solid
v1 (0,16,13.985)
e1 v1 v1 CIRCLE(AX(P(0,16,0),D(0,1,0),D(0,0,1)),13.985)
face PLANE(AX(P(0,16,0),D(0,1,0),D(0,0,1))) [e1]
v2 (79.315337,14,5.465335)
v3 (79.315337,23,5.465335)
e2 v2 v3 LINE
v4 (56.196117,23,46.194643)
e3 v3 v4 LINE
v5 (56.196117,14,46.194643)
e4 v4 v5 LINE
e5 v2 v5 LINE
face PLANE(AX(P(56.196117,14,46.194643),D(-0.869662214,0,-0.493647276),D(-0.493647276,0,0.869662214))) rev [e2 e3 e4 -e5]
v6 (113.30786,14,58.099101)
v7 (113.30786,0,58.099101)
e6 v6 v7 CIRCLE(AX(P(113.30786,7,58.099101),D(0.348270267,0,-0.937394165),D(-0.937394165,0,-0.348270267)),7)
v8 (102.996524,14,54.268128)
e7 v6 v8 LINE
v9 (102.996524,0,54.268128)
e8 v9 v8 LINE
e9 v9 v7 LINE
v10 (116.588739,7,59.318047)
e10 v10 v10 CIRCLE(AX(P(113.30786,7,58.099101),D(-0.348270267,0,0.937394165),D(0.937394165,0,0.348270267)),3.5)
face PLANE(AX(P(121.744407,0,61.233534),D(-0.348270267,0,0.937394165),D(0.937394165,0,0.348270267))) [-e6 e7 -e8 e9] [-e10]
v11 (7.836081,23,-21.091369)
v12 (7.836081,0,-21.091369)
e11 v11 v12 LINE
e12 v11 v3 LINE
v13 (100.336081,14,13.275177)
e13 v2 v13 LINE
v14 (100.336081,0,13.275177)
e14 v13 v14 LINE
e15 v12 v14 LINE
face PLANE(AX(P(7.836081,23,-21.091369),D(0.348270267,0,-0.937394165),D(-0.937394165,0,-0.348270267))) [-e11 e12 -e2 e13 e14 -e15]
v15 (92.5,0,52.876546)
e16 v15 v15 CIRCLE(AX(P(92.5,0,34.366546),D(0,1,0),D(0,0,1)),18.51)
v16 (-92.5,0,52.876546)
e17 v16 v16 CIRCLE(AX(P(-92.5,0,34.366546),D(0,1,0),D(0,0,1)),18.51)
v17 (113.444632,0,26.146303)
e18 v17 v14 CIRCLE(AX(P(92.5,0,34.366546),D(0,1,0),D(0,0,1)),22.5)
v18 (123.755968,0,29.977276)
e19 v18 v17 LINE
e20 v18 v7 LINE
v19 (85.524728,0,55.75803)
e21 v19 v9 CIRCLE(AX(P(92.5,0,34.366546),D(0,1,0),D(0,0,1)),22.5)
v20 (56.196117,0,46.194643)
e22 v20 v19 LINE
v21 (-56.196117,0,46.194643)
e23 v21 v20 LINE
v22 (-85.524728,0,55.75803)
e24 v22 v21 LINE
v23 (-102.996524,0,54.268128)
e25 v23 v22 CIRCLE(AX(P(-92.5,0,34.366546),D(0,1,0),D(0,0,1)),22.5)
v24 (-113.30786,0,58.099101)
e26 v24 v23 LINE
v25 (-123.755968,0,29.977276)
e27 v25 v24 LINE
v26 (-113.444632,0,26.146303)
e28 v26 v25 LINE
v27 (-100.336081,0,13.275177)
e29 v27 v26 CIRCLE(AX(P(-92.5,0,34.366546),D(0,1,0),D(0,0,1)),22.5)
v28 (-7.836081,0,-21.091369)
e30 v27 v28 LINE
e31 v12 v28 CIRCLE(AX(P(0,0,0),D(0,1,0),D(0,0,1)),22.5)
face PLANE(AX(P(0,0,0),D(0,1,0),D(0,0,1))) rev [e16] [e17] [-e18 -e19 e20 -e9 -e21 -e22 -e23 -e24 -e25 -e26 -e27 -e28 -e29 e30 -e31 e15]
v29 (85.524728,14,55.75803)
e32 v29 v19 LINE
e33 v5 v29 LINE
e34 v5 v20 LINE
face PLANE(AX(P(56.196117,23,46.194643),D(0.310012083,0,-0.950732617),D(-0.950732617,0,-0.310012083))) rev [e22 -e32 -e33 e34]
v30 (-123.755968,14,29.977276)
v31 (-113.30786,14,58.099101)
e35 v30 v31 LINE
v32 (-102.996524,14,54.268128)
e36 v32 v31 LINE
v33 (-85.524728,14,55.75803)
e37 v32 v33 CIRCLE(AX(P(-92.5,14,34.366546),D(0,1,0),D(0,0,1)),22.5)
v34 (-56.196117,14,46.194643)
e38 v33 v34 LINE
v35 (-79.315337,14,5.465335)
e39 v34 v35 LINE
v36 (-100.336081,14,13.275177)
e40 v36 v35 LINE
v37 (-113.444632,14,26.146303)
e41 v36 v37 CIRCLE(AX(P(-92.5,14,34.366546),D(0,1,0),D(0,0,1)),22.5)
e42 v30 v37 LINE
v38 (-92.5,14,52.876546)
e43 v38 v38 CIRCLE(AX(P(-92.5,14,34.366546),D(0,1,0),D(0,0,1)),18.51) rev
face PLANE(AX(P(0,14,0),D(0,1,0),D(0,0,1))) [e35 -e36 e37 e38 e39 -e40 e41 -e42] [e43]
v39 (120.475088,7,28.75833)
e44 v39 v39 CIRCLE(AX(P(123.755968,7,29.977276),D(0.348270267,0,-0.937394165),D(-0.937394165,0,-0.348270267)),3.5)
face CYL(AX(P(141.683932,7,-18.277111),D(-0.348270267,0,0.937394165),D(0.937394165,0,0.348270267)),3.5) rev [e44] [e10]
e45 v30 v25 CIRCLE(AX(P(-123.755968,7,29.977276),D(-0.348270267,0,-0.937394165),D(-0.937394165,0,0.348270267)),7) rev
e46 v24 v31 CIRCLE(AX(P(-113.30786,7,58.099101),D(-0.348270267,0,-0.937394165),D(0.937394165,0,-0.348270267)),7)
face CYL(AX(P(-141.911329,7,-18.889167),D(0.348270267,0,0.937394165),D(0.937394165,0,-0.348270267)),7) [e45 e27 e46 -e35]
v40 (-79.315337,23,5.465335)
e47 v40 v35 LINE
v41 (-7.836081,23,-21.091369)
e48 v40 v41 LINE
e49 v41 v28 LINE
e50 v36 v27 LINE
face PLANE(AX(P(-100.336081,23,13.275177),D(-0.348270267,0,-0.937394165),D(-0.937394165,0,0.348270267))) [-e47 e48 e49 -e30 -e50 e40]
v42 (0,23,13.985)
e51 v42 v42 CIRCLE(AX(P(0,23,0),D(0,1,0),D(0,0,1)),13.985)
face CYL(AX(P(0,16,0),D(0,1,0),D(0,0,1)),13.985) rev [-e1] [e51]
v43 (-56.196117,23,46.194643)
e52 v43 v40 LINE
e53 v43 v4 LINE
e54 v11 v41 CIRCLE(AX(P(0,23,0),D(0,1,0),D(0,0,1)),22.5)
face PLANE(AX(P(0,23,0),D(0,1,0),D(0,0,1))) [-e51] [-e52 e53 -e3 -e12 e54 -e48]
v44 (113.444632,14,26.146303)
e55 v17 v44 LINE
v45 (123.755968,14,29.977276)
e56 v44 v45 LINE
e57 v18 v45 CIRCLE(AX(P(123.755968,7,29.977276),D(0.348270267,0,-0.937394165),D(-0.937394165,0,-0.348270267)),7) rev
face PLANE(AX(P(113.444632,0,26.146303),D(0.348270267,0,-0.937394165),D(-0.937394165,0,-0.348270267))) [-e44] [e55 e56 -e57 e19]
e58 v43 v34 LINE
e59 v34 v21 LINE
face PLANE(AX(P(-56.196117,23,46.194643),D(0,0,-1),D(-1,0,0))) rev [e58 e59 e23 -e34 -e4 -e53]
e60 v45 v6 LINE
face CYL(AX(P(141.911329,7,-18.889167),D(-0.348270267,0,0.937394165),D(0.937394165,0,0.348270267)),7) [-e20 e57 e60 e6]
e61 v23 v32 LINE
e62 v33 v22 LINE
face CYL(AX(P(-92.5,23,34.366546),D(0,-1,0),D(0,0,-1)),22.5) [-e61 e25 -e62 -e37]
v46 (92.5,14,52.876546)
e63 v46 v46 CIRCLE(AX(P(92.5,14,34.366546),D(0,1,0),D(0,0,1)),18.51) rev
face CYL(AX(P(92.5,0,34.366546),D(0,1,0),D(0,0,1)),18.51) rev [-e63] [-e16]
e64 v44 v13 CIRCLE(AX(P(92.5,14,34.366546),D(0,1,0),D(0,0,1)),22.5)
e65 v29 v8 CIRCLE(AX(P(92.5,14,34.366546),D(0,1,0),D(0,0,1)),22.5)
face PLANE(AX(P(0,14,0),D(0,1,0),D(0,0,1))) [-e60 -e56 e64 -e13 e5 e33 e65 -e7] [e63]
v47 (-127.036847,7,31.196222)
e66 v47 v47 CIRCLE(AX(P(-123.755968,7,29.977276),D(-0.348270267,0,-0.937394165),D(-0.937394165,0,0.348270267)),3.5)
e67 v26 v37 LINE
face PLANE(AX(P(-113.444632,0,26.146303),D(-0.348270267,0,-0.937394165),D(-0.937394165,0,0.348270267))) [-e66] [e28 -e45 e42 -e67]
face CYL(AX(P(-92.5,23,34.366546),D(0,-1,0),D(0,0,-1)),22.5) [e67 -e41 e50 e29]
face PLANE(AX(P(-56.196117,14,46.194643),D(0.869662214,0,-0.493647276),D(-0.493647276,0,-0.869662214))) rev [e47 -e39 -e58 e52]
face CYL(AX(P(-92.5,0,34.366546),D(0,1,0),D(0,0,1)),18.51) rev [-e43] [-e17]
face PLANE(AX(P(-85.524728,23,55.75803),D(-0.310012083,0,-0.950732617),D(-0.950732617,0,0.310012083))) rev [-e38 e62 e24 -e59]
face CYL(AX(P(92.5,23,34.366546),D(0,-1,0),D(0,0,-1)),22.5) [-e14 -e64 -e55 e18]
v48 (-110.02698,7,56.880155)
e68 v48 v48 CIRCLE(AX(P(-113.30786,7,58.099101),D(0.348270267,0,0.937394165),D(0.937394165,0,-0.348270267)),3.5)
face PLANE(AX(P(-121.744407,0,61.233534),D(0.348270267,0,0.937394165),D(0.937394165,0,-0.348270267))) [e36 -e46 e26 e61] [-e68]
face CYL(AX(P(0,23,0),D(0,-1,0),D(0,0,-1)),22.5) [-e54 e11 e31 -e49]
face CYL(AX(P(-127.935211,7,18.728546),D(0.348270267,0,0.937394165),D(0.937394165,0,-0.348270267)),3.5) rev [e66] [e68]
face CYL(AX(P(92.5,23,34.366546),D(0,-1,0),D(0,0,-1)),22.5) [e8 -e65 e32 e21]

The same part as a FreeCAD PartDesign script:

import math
import FreeCAD as App
import Part
import Sketcher

V = App.Vector

doc = App.newDocument("Part")
body = doc.addObject("PartDesign::Body", "Body")

sketch1 = doc.addObject("Sketcher::SketchObject", "Sketch")
body.addObject(sketch1)
sketch1.AttachmentSupport = (doc.XZ_Plane, [""])
sketch1.MapMode = "FlatFace"
sketch1.addGeometry(Part.LineSegment(V(-8, -21, 0), V(-100, 13, 0)), False)
sketch1.addGeometry(Part.ArcOfCircle(Part.Circle(V(-93, 34, 0), V(0, 0, 1), 22), math.radians(72), math.radians(250)), False)
sketch1.addGeometry(Part.LineSegment(V(-86, 56, 0), V(-56, 46, 0)), False)
sketch1.addGeometry(Part.LineSegment(V(-56, 46, 0), V(56, 46, 0)), False)
sketch1.addGeometry(Part.LineSegment(V(56, 46, 0), V(86, 56, 0)), False)
sketch1.addGeometry(Part.ArcOfCircle(Part.Circle(V(93, 34, 0), V(0, 0, 1), 22), math.radians(-70), math.radians(108)), False)
sketch1.addGeometry(Part.LineSegment(V(100, 13, 0), V(8, -21, 0)), False)
sketch1.addGeometry(Part.ArcOfCircle(Part.Circle(V(0, 0, 0), V(0, 0, 1), 23), math.radians(-110), math.radians(-70)), False)
sketch1.addConstraint(Sketcher.Constraint("Tangent", 0, 2, 1, 2))
sketch1.addConstraint(Sketcher.Constraint("Tangent", 1, 1, 2, 1))
sketch1.addConstraint(Sketcher.Constraint("Coincident", 2, 2, 3, 1))
sketch1.addConstraint(Sketcher.Constraint("Coincident", 3, 2, 4, 1))
sketch1.addConstraint(Sketcher.Constraint("Tangent", 4, 2, 5, 2))
sketch1.addConstraint(Sketcher.Constraint("Tangent", 5, 1, 6, 1))
sketch1.addConstraint(Sketcher.Constraint("Tangent", 6, 2, 7, 2))
sketch1.addConstraint(Sketcher.Constraint("Tangent", 7, 1, 0, 1))
sketch1.addConstraint(Sketcher.Constraint("Horizontal", 3))
sketch1.addConstraint(Sketcher.Constraint("Coincident", 7, 3, -1, 1))
sketch1.addConstraint(Sketcher.Constraint("Equal", 1, 5))
sketch1.addConstraint(Sketcher.Constraint("Equal", 5, 7))
sketch1.addConstraint(Sketcher.Constraint("Symmetric", 1, 3, 5, 3, -2))
sketch1.addConstraint(Sketcher.Constraint("Horizontal", 1, 1, 4, 2))
sketch1.addConstraint(Sketcher.Constraint("Radius", 1, 22.5))
sketch1.addConstraint(Sketcher.Constraint("DistanceX", 1, 3, 5, 3, 185.0))
sketch1.addConstraint(Sketcher.Constraint("DistanceX", 3, 1, 3, 2, 112.392234))
sketch1.addConstraint(Sketcher.Constraint("DistanceX", 0, 2, -1, 1, 100.336081))
sketch1.addConstraint(Sketcher.Constraint("DistanceX", 1, 1, -1, 1, 85.524728))
pad1 = doc.addObject("PartDesign::Pad", "Pad")
body.addObject(pad1)
pad1.Profile = sketch1
pad1.Length = 23
pad1.Reversed = True

sketch2 = doc.addObject("Sketcher::SketchObject", "Sketch001")
body.addObject(sketch2)
sketch2.AttachmentSupport = (doc.XZ_Plane, [""])
sketch2.MapMode = "FlatFace"
sketch2.AttachmentOffset = App.Placement(V(0, 0, -23), App.Rotation())
sketch2.addGeometry(Part.Circle(V(-92, 34, 0), V(0, 0, 1), 19), False)
sketch2.addGeometry(Part.Circle(V(92, 34, 0), V(0, 0, 1), 19), False)
sketch2.addConstraint(Sketcher.Constraint("Equal", 0, 1))
sketch2.addConstraint(Sketcher.Constraint("Symmetric", 0, 3, 1, 3, -2))
sketch2.addConstraint(Sketcher.Constraint("Diameter", 0, 37.02))
sketch2.addConstraint(Sketcher.Constraint("DistanceX", 0, 3, 1, 3, 185.0))
sketch2.addConstraint(Sketcher.Constraint("DistanceY", -1, 1, 0, 3, 34.366546))
pocket1 = doc.addObject("PartDesign::Pocket", "Pocket")
body.addObject(pocket1)
pocket1.Profile = sketch2
pocket1.Type = "ThroughAll"
pocket1.Reversed = True

sketch3 = doc.addObject("Sketcher::SketchObject", "Sketch002")
body.addObject(sketch3)
sketch3.AttachmentSupport = (doc.XZ_Plane, [""])
sketch3.MapMode = "FlatFace"
sketch3.AttachmentOffset = App.Placement(V(0, 0, -23), App.Rotation())
sketch3.addGeometry(Part.Circle(V(0, 0, 0), V(0, 0, 1), 14), False)
sketch3.addConstraint(Sketcher.Constraint("Coincident", 0, 3, -1, 1))
sketch3.addConstraint(Sketcher.Constraint("Diameter", 0, 27.97))
pocket2 = doc.addObject("PartDesign::Pocket", "Pocket001")
body.addObject(pocket2)
pocket2.Profile = sketch3
pocket2.Length = 7
pocket2.Reversed = True

sketch4 = doc.addObject("Sketcher::SketchObject", "Sketch003")
body.addObject(sketch4)
sketch4.AttachmentSupport = (doc.XZ_Plane, [""])
sketch4.MapMode = "FlatFace"
sketch4.AttachmentOffset = App.Placement(V(0, 0, -23), App.Rotation())
sketch4.addGeometry(Part.LineSegment(V(-113, 26, 0), V(-132, 33, 0)), False)
sketch4.addGeometry(Part.LineSegment(V(-132, 33, 0), V(-122, 61, 0)), False)
sketch4.addGeometry(Part.LineSegment(V(-122, 61, 0), V(-103, 54, 0)), False)
sketch4.addGeometry(Part.ArcOfCircle(Part.Circle(V(-93, 34, 0), V(0, 0, 1), 22), math.radians(118), math.radians(201)), False)
sketch4.addGeometry(Part.LineSegment(V(132, 33, 0), V(113, 26, 0)), False)
sketch4.addGeometry(Part.ArcOfCircle(Part.Circle(V(93, 34, 0), V(0, 0, 1), 22), math.radians(-21), math.radians(62)), False)
sketch4.addGeometry(Part.LineSegment(V(103, 54, 0), V(122, 61, 0)), False)
sketch4.addGeometry(Part.LineSegment(V(122, 61, 0), V(132, 33, 0)), False)
sketch4.addConstraint(Sketcher.Constraint("Coincident", 0, 2, 1, 1))
sketch4.addConstraint(Sketcher.Constraint("Coincident", 1, 2, 2, 1))
sketch4.addConstraint(Sketcher.Constraint("Coincident", 2, 2, 3, 1))
sketch4.addConstraint(Sketcher.Constraint("Coincident", 3, 2, 0, 1))
sketch4.addConstraint(Sketcher.Constraint("Coincident", 4, 2, 5, 1))
sketch4.addConstraint(Sketcher.Constraint("Coincident", 5, 2, 6, 1))
sketch4.addConstraint(Sketcher.Constraint("Coincident", 6, 2, 7, 1))
sketch4.addConstraint(Sketcher.Constraint("Coincident", 7, 2, 4, 1))
sketch4.addConstraint(Sketcher.Constraint("Equal", 3, 5))
sketch4.addConstraint(Sketcher.Constraint("Symmetric", 3, 3, 5, 3, -2))
sketch4.addConstraint(Sketcher.Constraint("Symmetric", 1, 2, 6, 2, -2))
sketch4.addConstraint(Sketcher.Constraint("Symmetric", 0, 2, 7, 2, -2))
sketch4.addConstraint(Sketcher.Constraint("Perpendicular", 0, 1))
sketch4.addConstraint(Sketcher.Constraint("Perpendicular", 1, 2))
sketch4.addConstraint(Sketcher.Constraint("Parallel", 4, 6))
sketch4.addConstraint(Sketcher.Constraint("Perpendicular", 6, 7))
sketch4.addConstraint(Sketcher.Constraint("Equal", 0, 2))
sketch4.addConstraint(Sketcher.Constraint("Radius", 3, 22.5))
sketch4.addConstraint(Sketcher.Constraint("Distance", 0, 20.0))
sketch4.addConstraint(Sketcher.Constraint("Distance", 1, 30.0))
sketch4.addConstraint(Sketcher.Constraint("DistanceX", 3, 3, 5, 3, 185.0))
sketch4.addConstraint(Sketcher.Constraint("DistanceY", -1, 1, 0, 2, 33.111709))
sketch4.addConstraint(Sketcher.Constraint("DistanceY", -1, 1, 2, 2, 54.268128))
pad2 = doc.addObject("PartDesign::Pad", "Pad001")
body.addObject(pad2)
pad2.Profile = sketch4
pad2.Length = 23

sketch5 = doc.addObject("Sketcher::SketchObject", "Sketch004")
body.addObject(sketch5)
sketch5.Placement = App.Placement(V(5.224054, 0, 14.060912), App.Rotation(V(0.937394165, 0, -0.348270267), V(0, 0.999999999, 0), V(0.348270267, 0, 0.937394165), "ZXY"))
sketch5.addGeometry(Part.LineSegment(V(-135, 14, 0), V(-135, 0, 0)), False)
sketch5.addGeometry(Part.LineSegment(V(-135, 0, 0), V(-126, 0, 0)), False)
sketch5.addGeometry(Part.ArcOfCircle(Part.Circle(V(-126, 7, 0), V(0, 0, 1), 7), math.radians(90), math.radians(270)), False)
sketch5.addGeometry(Part.LineSegment(V(-126, 14, 0), V(-135, 14, 0)), False)
sketch5.addConstraint(Sketcher.Constraint("Coincident", 0, 2, 1, 1))
sketch5.addConstraint(Sketcher.Constraint("Tangent", 1, 2, 2, 2))
sketch5.addConstraint(Sketcher.Constraint("Tangent", 2, 1, 3, 1))
sketch5.addConstraint(Sketcher.Constraint("Coincident", 3, 2, 0, 1))
sketch5.addConstraint(Sketcher.Constraint("Vertical", 0))
sketch5.addConstraint(Sketcher.Constraint("Horizontal", 1))
sketch5.addConstraint(Sketcher.Constraint("Horizontal", 3))
sketch5.addConstraint(Sketcher.Constraint("PointOnObject", 0, 2, -1))
sketch5.addConstraint(Sketcher.Constraint("Radius", 2, 7.0))
sketch5.addConstraint(Sketcher.Constraint("DistanceX", 1, 1, 1, 2, 9.0))
sketch5.addConstraint(Sketcher.Constraint("DistanceX", 2, 3, -1, 1, 126.448316))
pocket3 = doc.addObject("PartDesign::Pocket", "Pocket002")
body.addObject(pocket3)
pocket3.Profile = sketch5
pocket3.Type = "ThroughAll"

sketch6 = doc.addObject("Sketcher::SketchObject", "Sketch005")
body.addObject(sketch6)
sketch6.Placement = App.Placement(V(5.224054, 0, 14.060912), App.Rotation(V(0.937394165, 0, -0.348270267), V(0, 0.999999999, 0), V(0.348270267, 0, 0.937394165), "ZXY"))
sketch6.addGeometry(Part.Circle(V(-126.4, 7, 0), V(0, 0, 1), 3.5), False)
sketch6.addConstraint(Sketcher.Constraint("Diameter", 0, 7.0))
sketch6.addConstraint(Sketcher.Constraint("DistanceY", -1, 1, 0, 3, 7.0))
sketch6.addConstraint(Sketcher.Constraint("DistanceX", 0, 3, -1, 1, 126.448316))
pocket4 = doc.addObject("PartDesign::Pocket", "Pocket003")
body.addObject(pocket4)
pocket4.Profile = sketch6
pocket4.Length = 42

sketch7 = doc.addObject("Sketcher::SketchObject", "Sketch006")
body.addObject(sketch7)
sketch7.Placement = App.Placement(V(-5.224054, 0, 14.060912), App.Rotation(V(0.937394165, 0, 0.348270267), V(0, 0.999999999, 0), V(-0.348270267, 0, 0.937394165), "ZXY"))
sketch7.addGeometry(Part.LineSegment(V(135, 14, 0), V(126, 14, 0)), False)
sketch7.addGeometry(Part.ArcOfCircle(Part.Circle(V(126, 7, 0), V(0, 0, 1), 7), math.radians(-90), math.radians(90)), False)
sketch7.addGeometry(Part.LineSegment(V(126, 0, 0), V(135, 0, 0)), False)
sketch7.addGeometry(Part.LineSegment(V(135, 0, 0), V(135, 14, 0)), False)
sketch7.addConstraint(Sketcher.Constraint("Tangent", 0, 2, 1, 2))
sketch7.addConstraint(Sketcher.Constraint("Tangent", 1, 1, 2, 1))
sketch7.addConstraint(Sketcher.Constraint("Coincident", 2, 2, 3, 1))
sketch7.addConstraint(Sketcher.Constraint("Coincident", 3, 2, 0, 1))
sketch7.addConstraint(Sketcher.Constraint("Horizontal", 0))
sketch7.addConstraint(Sketcher.Constraint("Horizontal", 2))
sketch7.addConstraint(Sketcher.Constraint("Vertical", 3))
sketch7.addConstraint(Sketcher.Constraint("PointOnObject", 1, 1, -1))
sketch7.addConstraint(Sketcher.Constraint("Radius", 1, 7.0))
sketch7.addConstraint(Sketcher.Constraint("DistanceX", 0, 2, 0, 1, 9.0))
sketch7.addConstraint(Sketcher.Constraint("DistanceX", -1, 1, 1, 3, 126.448316))
pocket5 = doc.addObject("PartDesign::Pocket", "Pocket004")
body.addObject(pocket5)
pocket5.Profile = sketch7
pocket5.Type = "ThroughAll"

sketch8 = doc.addObject("Sketcher::SketchObject", "Sketch007")
body.addObject(sketch8)
sketch8.AttachmentSupport = (doc.XZ_Plane, [""])
sketch8.MapMode = "FlatFace"
sketch8.AttachmentOffset = App.Placement(V(0, 0, -23), App.Rotation())
sketch8.addGeometry(Part.LineSegment(V(-56, 46, 0), V(-93, -19, 0)), False)
sketch8.addGeometry(Part.LineSegment(V(-93, -19, 0), V(-179, 24, 0)), False)
sketch8.addGeometry(Part.LineSegment(V(-179, 24, 0), V(-124, 84, 0)), False)
sketch8.addGeometry(Part.LineSegment(V(-124, 84, 0), V(-56, 46, 0)), False)
sketch8.addGeometry(Part.LineSegment(V(124, 84, 0), V(179, 24, 0)), False)
sketch8.addGeometry(Part.LineSegment(V(179, 24, 0), V(93, -19, 0)), False)
sketch8.addGeometry(Part.LineSegment(V(93, -19, 0), V(56, 46, 0)), False)
sketch8.addGeometry(Part.LineSegment(V(56, 46, 0), V(124, 84, 0)), False)
sketch8.addConstraint(Sketcher.Constraint("Coincident", 0, 2, 1, 1))
sketch8.addConstraint(Sketcher.Constraint("Coincident", 1, 2, 2, 1))
sketch8.addConstraint(Sketcher.Constraint("Coincident", 2, 2, 3, 1))
sketch8.addConstraint(Sketcher.Constraint("Coincident", 3, 2, 0, 1))
sketch8.addConstraint(Sketcher.Constraint("Coincident", 4, 2, 5, 1))
sketch8.addConstraint(Sketcher.Constraint("Coincident", 5, 2, 6, 1))
sketch8.addConstraint(Sketcher.Constraint("Coincident", 6, 2, 7, 1))
sketch8.addConstraint(Sketcher.Constraint("Coincident", 7, 2, 4, 1))
sketch8.addConstraint(Sketcher.Constraint("Symmetric", 1, 2, 4, 2, -2))
sketch8.addConstraint(Sketcher.Constraint("Symmetric", 0, 2, 5, 2, -2))
sketch8.addConstraint(Sketcher.Constraint("Symmetric", 3, 2, 6, 2, -2))
sketch8.addConstraint(Sketcher.Constraint("Symmetric", 2, 2, 7, 2, -2))
sketch8.addConstraint(Sketcher.Constraint("Perpendicular", 0, 3))
sketch8.addConstraint(Sketcher.Constraint("Distance", 0, 74.623431))
sketch8.addConstraint(Sketcher.Constraint("Distance", 2, 82.170461))
sketch8.addConstraint(Sketcher.Constraint("DistanceX", 0, 2, -1, 1, 93.03377))
sketch8.addConstraint(Sketcher.Constraint("DistanceY", -1, 1, 1, 2, 24.236128))
sketch8.addConstraint(Sketcher.Constraint("DistanceX", 1, 2, 0, 2, 86.449842))
sketch8.addConstraint(Sketcher.Constraint("DistanceY", 0, 2, 2, 2, 103.122831))
sketch8.addConstraint(Sketcher.Constraint("DistanceY", 0, 2, 3, 2, 64.897178))
pocket6 = doc.addObject("PartDesign::Pocket", "Pocket005")
body.addObject(pocket6)
pocket6.Profile = sketch8
pocket6.Length = 9
pocket6.Reversed = True

sketch9 = doc.addObject("Sketcher::SketchObject", "Sketch008")
body.addObject(sketch9)
sketch9.Placement = App.Placement(V(-5.224054, 0, 14.060912), App.Rotation(V(0.937394165, 0, 0.348270267), V(0, 0.999999999, 0), V(-0.348270267, 0, 0.937394165), "ZXY"))
sketch9.addGeometry(Part.Circle(V(126.4, 7, 0), V(0, 0, 1), 3.5), False)
sketch9.addConstraint(Sketcher.Constraint("Diameter", 0, 7.0))
sketch9.addConstraint(Sketcher.Constraint("DistanceY", -1, 1, 0, 3, 7.0))
sketch9.addConstraint(Sketcher.Constraint("DistanceX", -1, 1, 0, 3, 126.448316))
pocket7 = doc.addObject("PartDesign::Pocket", "Pocket006")
body.addObject(pocket7)
pocket7.Profile = sketch9
pocket7.Type = "ThroughAll"

doc.recompute()
